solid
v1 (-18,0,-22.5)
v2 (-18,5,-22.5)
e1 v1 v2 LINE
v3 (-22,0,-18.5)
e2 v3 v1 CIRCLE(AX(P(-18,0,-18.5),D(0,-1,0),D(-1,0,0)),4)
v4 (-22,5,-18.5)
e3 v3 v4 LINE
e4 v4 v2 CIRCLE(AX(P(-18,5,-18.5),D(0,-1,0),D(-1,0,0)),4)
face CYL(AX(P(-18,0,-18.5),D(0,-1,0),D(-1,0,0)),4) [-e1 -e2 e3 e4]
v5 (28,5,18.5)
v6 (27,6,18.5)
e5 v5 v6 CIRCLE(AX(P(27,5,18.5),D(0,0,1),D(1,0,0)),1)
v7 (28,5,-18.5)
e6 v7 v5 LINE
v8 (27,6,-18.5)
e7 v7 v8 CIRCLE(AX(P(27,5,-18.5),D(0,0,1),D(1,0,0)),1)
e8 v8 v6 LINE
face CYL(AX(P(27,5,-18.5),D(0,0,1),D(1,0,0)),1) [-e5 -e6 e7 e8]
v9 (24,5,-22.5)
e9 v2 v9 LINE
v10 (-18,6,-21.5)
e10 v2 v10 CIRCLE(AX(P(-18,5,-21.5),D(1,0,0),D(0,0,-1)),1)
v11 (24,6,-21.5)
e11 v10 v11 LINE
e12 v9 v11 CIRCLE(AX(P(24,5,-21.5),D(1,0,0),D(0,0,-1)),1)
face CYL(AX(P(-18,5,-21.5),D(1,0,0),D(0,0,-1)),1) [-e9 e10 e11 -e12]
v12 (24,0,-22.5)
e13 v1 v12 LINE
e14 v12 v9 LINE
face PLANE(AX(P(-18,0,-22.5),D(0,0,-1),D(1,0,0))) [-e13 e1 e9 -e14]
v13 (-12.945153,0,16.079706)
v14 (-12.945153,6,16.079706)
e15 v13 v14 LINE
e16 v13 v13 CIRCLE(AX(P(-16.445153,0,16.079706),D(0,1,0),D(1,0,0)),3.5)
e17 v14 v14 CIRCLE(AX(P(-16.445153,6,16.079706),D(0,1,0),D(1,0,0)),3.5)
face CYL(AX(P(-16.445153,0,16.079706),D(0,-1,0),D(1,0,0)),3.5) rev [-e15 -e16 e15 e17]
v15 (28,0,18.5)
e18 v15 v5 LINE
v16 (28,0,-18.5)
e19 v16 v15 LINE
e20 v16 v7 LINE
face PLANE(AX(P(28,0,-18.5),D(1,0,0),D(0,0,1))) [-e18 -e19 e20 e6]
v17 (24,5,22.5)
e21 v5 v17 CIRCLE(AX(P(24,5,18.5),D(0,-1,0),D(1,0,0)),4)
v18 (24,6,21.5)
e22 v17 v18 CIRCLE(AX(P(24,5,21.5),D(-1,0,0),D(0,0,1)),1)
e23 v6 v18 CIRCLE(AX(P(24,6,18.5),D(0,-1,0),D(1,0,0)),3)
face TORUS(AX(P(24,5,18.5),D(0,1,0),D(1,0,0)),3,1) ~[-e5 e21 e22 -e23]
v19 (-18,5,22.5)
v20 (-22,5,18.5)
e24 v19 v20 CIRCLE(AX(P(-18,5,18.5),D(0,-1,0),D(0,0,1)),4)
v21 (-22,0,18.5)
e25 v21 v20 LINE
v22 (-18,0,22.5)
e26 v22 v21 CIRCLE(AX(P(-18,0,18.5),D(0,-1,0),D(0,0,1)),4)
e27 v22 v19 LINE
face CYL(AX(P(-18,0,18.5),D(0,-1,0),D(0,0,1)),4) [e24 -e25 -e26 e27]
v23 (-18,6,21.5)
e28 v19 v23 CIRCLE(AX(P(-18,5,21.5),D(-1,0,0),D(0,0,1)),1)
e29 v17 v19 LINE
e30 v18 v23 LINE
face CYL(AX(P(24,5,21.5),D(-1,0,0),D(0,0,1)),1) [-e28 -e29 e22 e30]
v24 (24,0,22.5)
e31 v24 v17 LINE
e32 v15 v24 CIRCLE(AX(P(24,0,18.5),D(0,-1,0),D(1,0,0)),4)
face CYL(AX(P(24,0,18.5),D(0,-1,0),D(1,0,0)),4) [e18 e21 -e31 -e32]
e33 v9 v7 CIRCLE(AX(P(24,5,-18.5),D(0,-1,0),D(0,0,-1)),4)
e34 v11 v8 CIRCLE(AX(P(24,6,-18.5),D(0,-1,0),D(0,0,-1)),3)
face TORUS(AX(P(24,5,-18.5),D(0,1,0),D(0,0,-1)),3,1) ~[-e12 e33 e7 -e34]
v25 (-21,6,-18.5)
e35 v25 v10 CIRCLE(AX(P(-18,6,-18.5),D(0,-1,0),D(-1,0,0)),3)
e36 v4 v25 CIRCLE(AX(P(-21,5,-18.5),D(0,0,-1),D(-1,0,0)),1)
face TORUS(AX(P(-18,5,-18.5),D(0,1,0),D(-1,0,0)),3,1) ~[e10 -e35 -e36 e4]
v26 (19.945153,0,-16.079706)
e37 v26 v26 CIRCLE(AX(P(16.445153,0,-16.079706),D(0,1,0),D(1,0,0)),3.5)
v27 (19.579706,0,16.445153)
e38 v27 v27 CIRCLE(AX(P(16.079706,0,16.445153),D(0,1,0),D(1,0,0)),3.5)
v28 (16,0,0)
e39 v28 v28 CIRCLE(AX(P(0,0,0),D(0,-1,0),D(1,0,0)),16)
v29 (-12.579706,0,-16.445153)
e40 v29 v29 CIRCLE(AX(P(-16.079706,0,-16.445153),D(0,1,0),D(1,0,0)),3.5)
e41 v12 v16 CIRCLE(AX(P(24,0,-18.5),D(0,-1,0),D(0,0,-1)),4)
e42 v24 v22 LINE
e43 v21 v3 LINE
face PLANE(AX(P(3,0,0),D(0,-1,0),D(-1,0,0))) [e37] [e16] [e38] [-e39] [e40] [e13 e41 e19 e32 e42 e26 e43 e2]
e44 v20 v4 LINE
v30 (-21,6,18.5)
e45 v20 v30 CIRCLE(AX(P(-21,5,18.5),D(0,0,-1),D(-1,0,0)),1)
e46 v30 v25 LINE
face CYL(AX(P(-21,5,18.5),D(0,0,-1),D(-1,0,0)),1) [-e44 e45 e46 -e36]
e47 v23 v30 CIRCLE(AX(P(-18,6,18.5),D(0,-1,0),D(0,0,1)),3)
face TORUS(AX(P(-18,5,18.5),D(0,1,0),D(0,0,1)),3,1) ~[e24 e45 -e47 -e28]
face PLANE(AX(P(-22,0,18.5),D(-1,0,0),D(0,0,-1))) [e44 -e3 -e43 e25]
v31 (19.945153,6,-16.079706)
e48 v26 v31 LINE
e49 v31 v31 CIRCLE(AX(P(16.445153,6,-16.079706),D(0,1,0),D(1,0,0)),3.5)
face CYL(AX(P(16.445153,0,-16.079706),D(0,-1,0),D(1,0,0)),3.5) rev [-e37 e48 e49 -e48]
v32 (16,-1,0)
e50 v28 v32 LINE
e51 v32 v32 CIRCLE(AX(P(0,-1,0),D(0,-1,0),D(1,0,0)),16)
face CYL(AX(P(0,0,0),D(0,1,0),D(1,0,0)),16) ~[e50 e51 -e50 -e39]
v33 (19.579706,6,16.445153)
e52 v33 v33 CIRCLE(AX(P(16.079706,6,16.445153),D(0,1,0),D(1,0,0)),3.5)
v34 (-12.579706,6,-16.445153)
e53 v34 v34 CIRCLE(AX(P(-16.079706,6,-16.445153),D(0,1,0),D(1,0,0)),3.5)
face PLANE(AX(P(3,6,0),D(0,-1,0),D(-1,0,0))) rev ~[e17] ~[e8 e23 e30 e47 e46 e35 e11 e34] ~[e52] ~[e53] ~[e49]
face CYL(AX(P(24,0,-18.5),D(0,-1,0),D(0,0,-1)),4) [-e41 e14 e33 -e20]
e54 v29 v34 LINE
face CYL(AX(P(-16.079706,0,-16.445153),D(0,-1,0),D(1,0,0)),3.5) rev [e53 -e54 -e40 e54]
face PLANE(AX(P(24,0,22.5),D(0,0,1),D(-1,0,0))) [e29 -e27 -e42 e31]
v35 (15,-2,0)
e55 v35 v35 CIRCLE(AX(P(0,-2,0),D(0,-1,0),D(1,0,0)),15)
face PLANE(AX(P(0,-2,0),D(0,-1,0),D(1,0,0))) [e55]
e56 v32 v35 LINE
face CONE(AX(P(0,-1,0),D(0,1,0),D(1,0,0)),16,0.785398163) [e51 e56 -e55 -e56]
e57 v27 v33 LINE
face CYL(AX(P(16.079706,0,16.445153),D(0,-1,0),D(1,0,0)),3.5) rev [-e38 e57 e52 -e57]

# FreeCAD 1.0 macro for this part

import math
import FreeCAD as App
import Part
import Sketcher
Q = App.Units.Quantity


def edges_at(feature, points):
    """Names of the edges that pass closest to the given points."""
    edges = feature.Shape.Edges
    near = lambda p: min(range(len(edges)), key=lambda i: edges[i].distToShape(Part.Vertex(*p))[0])
    return sorted({f"Edge{near(p) + 1}" for p in points})

doc = App.newDocument("Part")
body = doc.addObject("PartDesign::Body", "Body")

sketch1 = body.newObject("Sketcher::SketchObject", "Sketch")
sketch1.AttachmentSupport = (doc.getObject("XZ_Plane"), [""])
sketch1.MapMode = "FlatFace"
sketch1.addGeometry(Part.LineSegment(App.Vector(24, -22.5, 0), App.Vector(-18, -22.5, 0)), False)
sketch1.addGeometry(Part.ArcOfCircle(Part.Circle(App.Vector(-18, -18.5, 0), App.Vector(0, 0, 1), 4), math.radians(180), math.radians(270)), False)
sketch1.addGeometry(Part.LineSegment(App.Vector(-22, -18.5, 0), App.Vector(-22, 18.5, 0)), False)
sketch1.addGeometry(Part.ArcOfCircle(Part.Circle(App.Vector(-18, 18.5, 0), App.Vector(0, 0, 1), 4), math.radians(90), math.radians(180)), False)
sketch1.addGeometry(Part.LineSegment(App.Vector(-18, 22.5, 0), App.Vector(24, 22.5, 0)), False)
sketch1.addGeometry(Part.ArcOfCircle(Part.Circle(App.Vector(24, 18.5, 0), App.Vector(0, 0, 1), 4), math.radians(0), math.radians(90)), False)
sketch1.addGeometry(Part.LineSegment(App.Vector(28, 18.5, 0), App.Vector(28, -18.5, 0)), False)
sketch1.addGeometry(Part.ArcOfCircle(Part.Circle(App.Vector(24, -18.5, 0), App.Vector(0, 0, 1), 4), math.radians(-90), math.radians(0)), False)
sketch1.addGeometry(Part.Circle(App.Vector(16.1, 16.4, 0), App.Vector(0, 0, 1), 3.5), False)
sketch1.addGeometry(Part.Circle(App.Vector(-16.4, 16.1, 0), App.Vector(0, 0, 1), 3.5), False)
sketch1.addGeometry(Part.Circle(App.Vector(16.4, -16.1, 0), App.Vector(0, 0, 1), 3.5), False)
sketch1.addGeometry(Part.Circle(App.Vector(-16.1, -16.4, 0), App.Vector(0, 0, 1), 3.5), False)
sketch1.addConstraint(Sketcher.Constraint("Tangent", 0, 2, 1, 2))
sketch1.addConstraint(Sketcher.Constraint("Tangent", 1, 1, 2, 1))
sketch1.addConstraint(Sketcher.Constraint("Tangent", 2, 2, 3, 2))
sketch1.addConstraint(Sketcher.Constraint("Tangent", 3, 1, 4, 1))
sketch1.addConstraint(Sketcher.Constraint("Tangent", 4, 2, 5, 2))
sketch1.addConstraint(Sketcher.Constraint("Tangent", 5, 1, 6, 1))
sketch1.addConstraint(Sketcher.Constraint("Tangent", 6, 2, 7, 2))
sketch1.addConstraint(Sketcher.Constraint("Tangent", 7, 1, 0, 1))
sketch1.addConstraint(Sketcher.Constraint("Horizontal", 0))
sketch1.addConstraint(Sketcher.Constraint("Vertical", 2))
sketch1.addConstraint(Sketcher.Constraint("Horizontal", 4))
sketch1.addConstraint(Sketcher.Constraint("Vertical", 6))
sketch1.addConstraint(Sketcher.Constraint("Equal", 1, 3))
sketch1.addConstraint(Sketcher.Constraint("Equal", 3, 5))
sketch1.addConstraint(Sketcher.Constraint("Equal", 5, 7))
sketch1.addConstraint(Sketcher.Constraint("Equal", 8, 9))
sketch1.addConstraint(Sketcher.Constraint("Equal", 9, 10))
sketch1.addConstraint(Sketcher.Constraint("Equal", 10, 11))
sketch1.addConstraint(Sketcher.Constraint("Symmetric", 9, 3, 10, 3, -1, 1))
sketch1.addConstraint(Sketcher.Constraint("Symmetric", 8, 3, 11, 3, -1, 1))
sketch1.addConstraint(Sketcher.Constraint("Diameter", 8, Q("7 mm")))
sketch1.addConstraint(Sketcher.Constraint("Radius", 1, Q("4 mm")))
sketch1.addConstraint(Sketcher.Constraint("DistanceX", 0, 2, 0, 1, Q("42 mm")))
sketch1.addConstraint(Sketcher.Constraint("DistanceY", 2, 1, 2, 2, Q("37 mm")))
sketch1.addConstraint(Sketcher.Constraint("DistanceX", 1, 3, -1, 1, Q("18 mm")))
sketch1.addConstraint(Sketcher.Constraint("DistanceY", 1, 3, -1, 1, Q("18.5 mm")))
sketch1.addConstraint(Sketcher.Constraint("DistanceX", 9, 3, 8, 3, Q("32.524859 mm")))
sketch1.addConstraint(Sketcher.Constraint("DistanceY", 10, 3, 8, 3, Q("32.524859 mm")))
sketch1.addConstraint(Sketcher.Constraint("DistanceY", 10, 3, 9, 3, Q("32.159411 mm")))
sketch1.addConstraint(Sketcher.Constraint("DistanceX", -1, 1, 8, 3, Q("16.079706 mm")))
pad1 = body.newObject("PartDesign::Pad", "Pad")
pad1.Profile = sketch1
pad1.Length = 6
pad1.Reversed = True
doc.recompute()

fillet = body.newObject("PartDesign::Fillet", "Fillet")
fillet.Base = (pad1, edges_at(pad1, [
    (-20.828, 6, -21.328),
    (-22, 6, 0),
    (-20.828, 6, 21.328),
    (3, 6, 22.5),
    (26.828, 6, 21.328),
    (28, 6, 0),
    (26.828, 6, -21.328),
    (3, 6, -22.5),
]))
fillet.Radius = 1

sketch2 = body.newObject("Sketcher::SketchObject", "Sketch001")
sketch2.AttachmentSupport = (doc.getObject("XZ_Plane"), [""])
sketch2.MapMode = "FlatFace"
sketch2.addGeometry(Part.Circle(App.Vector(0, 0, 0), App.Vector(0, 0, 1), 16), False)
sketch2.addConstraint(Sketcher.Constraint("Coincident", 0, 3, -1, 1))
sketch2.addConstraint(Sketcher.Constraint("Diameter", 0, Q("32 mm")))
pad2 = body.newObject("PartDesign::Pad", "Pad001")
pad2.Profile = sketch2
pad2.Length = 2
doc.recompute()

chamfer = body.newObject("PartDesign::Chamfer", "Chamfer")
chamfer.Base = (pad2, edges_at(pad2, [(-16, -2, 0)]))
chamfer.Size = 1

doc.recompute()
